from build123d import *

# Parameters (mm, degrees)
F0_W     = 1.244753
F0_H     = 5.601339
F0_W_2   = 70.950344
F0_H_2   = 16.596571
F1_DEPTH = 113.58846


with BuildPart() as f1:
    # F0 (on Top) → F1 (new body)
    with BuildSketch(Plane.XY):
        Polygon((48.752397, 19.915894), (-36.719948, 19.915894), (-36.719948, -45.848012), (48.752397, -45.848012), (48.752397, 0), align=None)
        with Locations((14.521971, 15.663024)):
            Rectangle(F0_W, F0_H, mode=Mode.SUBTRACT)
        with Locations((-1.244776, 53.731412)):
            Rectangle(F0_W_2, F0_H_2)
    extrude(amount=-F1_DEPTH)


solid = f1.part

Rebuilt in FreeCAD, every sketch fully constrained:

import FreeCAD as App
import Part
import Sketcher
Q = App.Units.Quantity

doc = App.newDocument("Part")
body = doc.addObject("PartDesign::Body", "Body")
body.AllowCompound = True

# Sketch on XY plane
sketch1 = body.newObject("Sketcher::SketchObject", "Sketch")
sketch1.AttachmentSupport = (doc.getObject("XY_Plane"), [""])
sketch1.MapMode = "FlatFace"
sketch1.addGeometry([
    Part.LineSegment(App.Vector(48.8, 19.9, 0), App.Vector(-36.7, 19.9, 0)),  # 0
    Part.LineSegment(App.Vector(-36.7, 19.9, 0), App.Vector(-36.7, -45.8, 0)),  # 1
    Part.LineSegment(App.Vector(-36.7, -45.8, 0), App.Vector(48.8, -45.8, 0)),  # 2
    Part.LineSegment(App.Vector(48.8, -45.8, 0), App.Vector(48.8, 19.9, 0)),  # 3
    Part.LineSegment(App.Vector(15.1, 12.9, 0), App.Vector(13.9, 12.9, 0)),  # 4
    Part.LineSegment(App.Vector(13.9, 12.9, 0), App.Vector(13.9, 18.5, 0)),  # 5
    Part.LineSegment(App.Vector(13.9, 18.5, 0), App.Vector(15.1, 18.5, 0)),  # 6
    Part.LineSegment(App.Vector(15.1, 18.5, 0), App.Vector(15.1, 12.9, 0)),  # 7
    Part.LineSegment(App.Vector(-36.7, 62, 0), App.Vector(-36.7, 45.4, 0)),  # 8
    Part.LineSegment(App.Vector(-36.7, 45.4, 0), App.Vector(34.2, 45.4, 0)),  # 9
    Part.LineSegment(App.Vector(34.2, 45.4, 0), App.Vector(34.2, 62, 0)),  # 10
    Part.LineSegment(App.Vector(34.2, 62, 0), App.Vector(-36.7, 62, 0)),  # 11
], False)
sketch1.addConstraint([
    Sketcher.Constraint("Coincident", 0, 2, 1, 1),
    Sketcher.Constraint("Coincident", 1, 2, 2, 1),
    Sketcher.Constraint("Coincident", 2, 2, 3, 1),
    Sketcher.Constraint("Coincident", 3, 2, 0, 1),
    Sketcher.Constraint("Coincident", 4, 2, 5, 1),
    Sketcher.Constraint("Coincident", 5, 2, 6, 1),
    Sketcher.Constraint("Coincident", 6, 2, 7, 1),
    Sketcher.Constraint("Coincident", 7, 2, 4, 1),
    Sketcher.Constraint("Coincident", 8, 2, 9, 1),
    Sketcher.Constraint("Coincident", 9, 2, 10, 1),
    Sketcher.Constraint("Coincident", 10, 2, 11, 1),
    Sketcher.Constraint("Coincident", 11, 2, 8, 1),
    Sketcher.Constraint("Horizontal", 0),
    Sketcher.Constraint("Vertical", 1),
    Sketcher.Constraint("Horizontal", 2),
    Sketcher.Constraint("Vertical", 3),
    Sketcher.Constraint("Horizontal", 4),
    Sketcher.Constraint("Vertical", 5),
    Sketcher.Constraint("Horizontal", 6),
    Sketcher.Constraint("Vertical", 7),
    Sketcher.Constraint("Vertical", 8),
    Sketcher.Constraint("Horizontal", 9),
    Sketcher.Constraint("Vertical", 10),
    Sketcher.Constraint("Horizontal", 11),
    Sketcher.Constraint("Vertical", 1, 2, 8, 2),
    Sketcher.Constraint("DistanceX", 9, 2, 3, 2, Q("14.522001 mm")),
    Sketcher.Constraint("DistanceY", 5, 1, 5, 2, Q("5.601339 mm")),
    Sketcher.Constraint("DistanceY", 8, 2, 8, 1, Q("16.596571 mm")),
    Sketcher.Constraint("DistanceY", 5, 2, 3, 2, Q("1.452201 mm")),
    Sketcher.Constraint("DistanceX", 5, 2, 9, 2, Q("20.330801 mm")),
    Sketcher.Constraint("DistanceX", 0, 2, 0, 1, Q("85.472345 mm")),
    Sketcher.Constraint("DistanceX", 4, 2, 4, 1, Q("1.244753 mm")),
    Sketcher.Constraint("DistanceY", 1, 2, 1, 1, Q("65.763906 mm")),
    Sketcher.Constraint("DistanceX", 0, 2, -1, 1, Q("36.719948 mm")),
    Sketcher.Constraint("DistanceY", 1, 2, -1, 1, Q("45.848012 mm")),
    Sketcher.Constraint("DistanceY", 4, 2, 8, 2, Q("32.570772 mm")),
])
pad1 = body.newObject("PartDesign::Pad", "Pad")
pad1.Profile = sketch1
pad1.Length = 113.58846
pad1.Reversed = True

doc.recompute()
